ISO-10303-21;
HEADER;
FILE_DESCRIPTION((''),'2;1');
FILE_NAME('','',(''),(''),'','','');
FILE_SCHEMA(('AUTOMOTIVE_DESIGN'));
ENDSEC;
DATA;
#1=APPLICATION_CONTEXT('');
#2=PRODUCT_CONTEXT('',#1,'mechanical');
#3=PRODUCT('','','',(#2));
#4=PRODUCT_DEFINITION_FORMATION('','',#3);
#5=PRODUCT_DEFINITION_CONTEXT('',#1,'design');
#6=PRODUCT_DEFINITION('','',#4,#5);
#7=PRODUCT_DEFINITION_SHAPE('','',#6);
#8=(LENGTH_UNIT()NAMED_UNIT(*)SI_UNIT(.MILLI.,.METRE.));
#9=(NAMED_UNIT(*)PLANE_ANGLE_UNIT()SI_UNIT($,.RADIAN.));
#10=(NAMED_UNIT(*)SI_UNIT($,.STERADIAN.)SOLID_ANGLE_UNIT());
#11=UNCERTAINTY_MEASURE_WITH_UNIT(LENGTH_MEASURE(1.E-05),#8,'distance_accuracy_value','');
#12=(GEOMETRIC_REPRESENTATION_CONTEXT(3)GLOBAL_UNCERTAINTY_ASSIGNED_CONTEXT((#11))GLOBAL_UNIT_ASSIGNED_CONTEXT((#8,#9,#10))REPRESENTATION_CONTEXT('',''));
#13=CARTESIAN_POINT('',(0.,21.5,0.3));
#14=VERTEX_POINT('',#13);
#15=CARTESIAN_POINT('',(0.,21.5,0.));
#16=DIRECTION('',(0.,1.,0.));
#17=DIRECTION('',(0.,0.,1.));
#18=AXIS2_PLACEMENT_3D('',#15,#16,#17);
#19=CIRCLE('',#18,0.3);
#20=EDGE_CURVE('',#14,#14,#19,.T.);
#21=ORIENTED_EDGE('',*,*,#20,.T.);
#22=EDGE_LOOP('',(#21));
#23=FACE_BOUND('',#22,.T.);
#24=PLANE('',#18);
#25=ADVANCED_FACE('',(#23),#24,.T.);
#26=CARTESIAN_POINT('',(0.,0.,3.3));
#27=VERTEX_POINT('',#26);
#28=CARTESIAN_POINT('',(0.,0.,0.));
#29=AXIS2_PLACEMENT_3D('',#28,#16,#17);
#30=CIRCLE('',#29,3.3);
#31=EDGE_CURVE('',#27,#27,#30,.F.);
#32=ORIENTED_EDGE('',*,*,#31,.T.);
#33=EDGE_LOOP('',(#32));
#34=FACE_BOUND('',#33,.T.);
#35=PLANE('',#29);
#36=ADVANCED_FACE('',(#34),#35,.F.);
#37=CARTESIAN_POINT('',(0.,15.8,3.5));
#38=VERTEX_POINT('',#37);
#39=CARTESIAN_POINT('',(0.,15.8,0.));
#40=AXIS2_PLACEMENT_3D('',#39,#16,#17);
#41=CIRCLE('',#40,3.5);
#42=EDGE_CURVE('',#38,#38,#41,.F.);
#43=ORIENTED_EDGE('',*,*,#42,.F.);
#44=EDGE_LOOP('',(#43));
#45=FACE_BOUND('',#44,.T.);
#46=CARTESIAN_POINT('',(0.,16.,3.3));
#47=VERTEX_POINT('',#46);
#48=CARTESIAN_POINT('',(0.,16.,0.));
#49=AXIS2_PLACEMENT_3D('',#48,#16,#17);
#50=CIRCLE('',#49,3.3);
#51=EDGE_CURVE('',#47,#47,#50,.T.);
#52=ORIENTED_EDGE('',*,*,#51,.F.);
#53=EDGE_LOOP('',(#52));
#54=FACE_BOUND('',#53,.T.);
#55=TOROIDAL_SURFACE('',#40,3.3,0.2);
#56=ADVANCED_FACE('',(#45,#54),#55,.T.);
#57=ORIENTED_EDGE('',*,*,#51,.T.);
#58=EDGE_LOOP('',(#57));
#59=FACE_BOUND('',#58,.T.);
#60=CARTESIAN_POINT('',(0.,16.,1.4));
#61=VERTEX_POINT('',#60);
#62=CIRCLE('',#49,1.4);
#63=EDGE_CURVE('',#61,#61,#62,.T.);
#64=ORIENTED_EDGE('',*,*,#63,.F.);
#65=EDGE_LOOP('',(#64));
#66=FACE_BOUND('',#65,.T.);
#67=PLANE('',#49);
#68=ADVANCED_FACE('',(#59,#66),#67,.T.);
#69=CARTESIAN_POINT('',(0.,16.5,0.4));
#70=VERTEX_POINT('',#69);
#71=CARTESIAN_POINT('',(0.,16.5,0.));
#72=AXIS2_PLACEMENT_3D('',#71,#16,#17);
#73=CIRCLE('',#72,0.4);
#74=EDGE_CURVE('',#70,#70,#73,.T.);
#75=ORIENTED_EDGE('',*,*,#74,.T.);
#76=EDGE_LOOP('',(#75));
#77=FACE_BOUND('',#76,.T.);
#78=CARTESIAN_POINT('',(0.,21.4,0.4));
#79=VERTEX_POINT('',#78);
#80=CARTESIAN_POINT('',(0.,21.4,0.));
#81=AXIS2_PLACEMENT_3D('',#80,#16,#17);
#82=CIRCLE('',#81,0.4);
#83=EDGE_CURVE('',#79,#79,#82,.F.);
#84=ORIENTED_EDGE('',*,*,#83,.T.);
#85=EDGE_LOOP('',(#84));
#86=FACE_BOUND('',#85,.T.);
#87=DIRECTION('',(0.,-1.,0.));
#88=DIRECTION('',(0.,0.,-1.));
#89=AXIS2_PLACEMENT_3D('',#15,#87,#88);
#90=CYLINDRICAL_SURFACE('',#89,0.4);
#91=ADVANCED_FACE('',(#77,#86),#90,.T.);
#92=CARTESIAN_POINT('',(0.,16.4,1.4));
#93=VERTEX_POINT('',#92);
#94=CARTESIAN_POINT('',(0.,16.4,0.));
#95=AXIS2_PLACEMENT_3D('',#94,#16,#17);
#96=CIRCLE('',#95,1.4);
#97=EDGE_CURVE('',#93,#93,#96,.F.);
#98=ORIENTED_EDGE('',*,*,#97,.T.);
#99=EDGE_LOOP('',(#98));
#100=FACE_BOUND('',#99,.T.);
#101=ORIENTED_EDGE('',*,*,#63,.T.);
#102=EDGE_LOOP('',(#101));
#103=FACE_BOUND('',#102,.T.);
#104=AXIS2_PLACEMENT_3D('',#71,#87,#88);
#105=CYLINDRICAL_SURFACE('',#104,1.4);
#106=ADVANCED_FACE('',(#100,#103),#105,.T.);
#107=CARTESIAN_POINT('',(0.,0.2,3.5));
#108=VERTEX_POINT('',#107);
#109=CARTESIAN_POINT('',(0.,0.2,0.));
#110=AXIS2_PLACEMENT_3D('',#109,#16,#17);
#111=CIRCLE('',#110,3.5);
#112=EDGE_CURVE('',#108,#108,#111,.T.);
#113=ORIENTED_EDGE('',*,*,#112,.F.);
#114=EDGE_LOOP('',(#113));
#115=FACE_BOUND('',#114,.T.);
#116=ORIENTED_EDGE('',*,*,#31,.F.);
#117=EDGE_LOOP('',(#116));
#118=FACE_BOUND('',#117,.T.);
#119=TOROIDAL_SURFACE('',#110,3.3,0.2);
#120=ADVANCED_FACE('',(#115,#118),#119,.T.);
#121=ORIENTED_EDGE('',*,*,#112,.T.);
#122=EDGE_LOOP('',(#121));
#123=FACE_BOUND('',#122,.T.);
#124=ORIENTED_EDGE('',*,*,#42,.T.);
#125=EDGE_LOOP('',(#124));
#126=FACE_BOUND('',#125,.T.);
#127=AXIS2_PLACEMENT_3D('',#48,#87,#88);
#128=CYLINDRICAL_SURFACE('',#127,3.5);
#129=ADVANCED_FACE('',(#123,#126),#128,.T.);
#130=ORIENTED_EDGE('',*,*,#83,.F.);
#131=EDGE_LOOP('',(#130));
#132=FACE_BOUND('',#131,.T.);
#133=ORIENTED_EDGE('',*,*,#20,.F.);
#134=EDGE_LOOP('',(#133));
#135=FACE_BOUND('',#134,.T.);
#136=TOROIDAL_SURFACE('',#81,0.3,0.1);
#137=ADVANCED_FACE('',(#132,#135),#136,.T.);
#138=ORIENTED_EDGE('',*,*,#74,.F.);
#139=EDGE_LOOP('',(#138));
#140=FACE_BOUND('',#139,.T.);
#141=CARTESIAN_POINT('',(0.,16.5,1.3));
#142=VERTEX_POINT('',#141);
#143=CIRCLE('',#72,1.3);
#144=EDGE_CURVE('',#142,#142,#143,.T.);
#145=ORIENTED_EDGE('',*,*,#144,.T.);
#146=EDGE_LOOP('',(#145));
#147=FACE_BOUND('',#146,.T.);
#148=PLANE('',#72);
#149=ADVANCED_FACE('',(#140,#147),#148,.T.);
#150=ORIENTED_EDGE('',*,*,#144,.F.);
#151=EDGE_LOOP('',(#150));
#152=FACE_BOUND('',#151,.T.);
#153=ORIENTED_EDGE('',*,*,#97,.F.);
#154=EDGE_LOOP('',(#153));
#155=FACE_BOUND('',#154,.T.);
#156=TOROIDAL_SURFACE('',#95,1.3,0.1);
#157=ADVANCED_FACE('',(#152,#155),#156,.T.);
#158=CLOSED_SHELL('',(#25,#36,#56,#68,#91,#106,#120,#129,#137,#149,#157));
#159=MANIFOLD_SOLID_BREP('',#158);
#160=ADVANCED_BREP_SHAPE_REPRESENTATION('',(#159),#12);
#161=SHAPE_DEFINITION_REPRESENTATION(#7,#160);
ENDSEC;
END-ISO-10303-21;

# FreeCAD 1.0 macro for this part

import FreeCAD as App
import Part
import Sketcher
from FreeCAD import Vector
Q = App.Units.Quantity


def edges_at(feature, points):
    """Names of the edges that pass closest to the given points."""
    edges = feature.Shape.Edges
    near = lambda p: min(range(len(edges)), key=lambda i: edges[i].distToShape(Part.Vertex(*p))[0])
    return sorted({f"Edge{near(p) + 1}" for p in points})

doc = App.newDocument("Part")
params = doc.addObject("Spreadsheet::Sheet", "Params")
for row, (alias, value) in enumerate([
    ("sketch1_diameter", "7 mm"),
    ("pad1_length", "16 mm"),
    ("sketch2_diameter", "2.8 mm"),
    ("pad2_length", "0.5 mm"),
    ("sketch3_diameter", "0.8 mm"),
    ("pad3_length", "5 mm"),
    ("fillet_radius", "0.1 mm"),
    ("fillet2_radius", "0.2 mm"),
    ("fillet3_radius", "0.2 mm"),
    ("fillet4_radius", "0.1 mm"),
], start=1):
    params.set(f"A{row}", alias)
    params.set(f"B{row}", "=" + value)
    params.setAlias(f"B{row}", alias)

body = doc.addObject("PartDesign::Body", "Body")

sketch1 = body.newObject("Sketcher::SketchObject", "Sketch")
sketch1.AttachmentSupport = (doc.getObject("XZ_Plane"), [""])
sketch1.MapMode = "FlatFace"
sketch1.addGeometry(Part.Circle(Vector(0, 0, 0), Vector(0, 0, 1), 3.5), False)
sketch1.addConstraint(Sketcher.Constraint("Coincident", 0, 3, -1, 1))
sketch1.addConstraint(Sketcher.Constraint("Diameter", 0, Q("7 mm")))
sketch1.setExpression("Constraints[1]", "Params.sketch1_diameter")
pad1 = body.newObject("PartDesign::Pad", "Pad")
pad1.Profile = sketch1
pad1.setExpression("Length", "Params.pad1_length")
pad1.Reversed = True

sketch2 = body.newObject("Sketcher::SketchObject", "Sketch001")
sketch2.AttachmentSupport = (doc.getObject("XZ_Plane"), [""])
sketch2.MapMode = "FlatFace"
sketch2.AttachmentOffset = App.Placement(Vector(0, 0, -16), App.Rotation())
sketch2.addGeometry(Part.Circle(Vector(0, 0, 0), Vector(0, 0, 1), 1.4), False)
sketch2.addConstraint(Sketcher.Constraint("Coincident", 0, 3, -1, 1))
sketch2.addConstraint(Sketcher.Constraint("Diameter", 0, Q("2.8 mm")))
sketch2.setExpression("Constraints[1]", "Params.sketch2_diameter")
pad2 = body.newObject("PartDesign::Pad", "Pad001")
pad2.Profile = sketch2
pad2.setExpression("Length", "Params.pad2_length")
pad2.Reversed = True

sketch3 = body.newObject("Sketcher::SketchObject", "Sketch002")
sketch3.AttachmentSupport = (doc.getObject("XZ_Plane"), [""])
sketch3.MapMode = "FlatFace"
sketch3.AttachmentOffset = App.Placement(Vector(0, 0, -16.5), App.Rotation())
sketch3.addGeometry(Part.Circle(Vector(0, 0, 0), Vector(0, 0, 1), 0.4), False)
sketch3.addConstraint(Sketcher.Constraint("Coincident", 0, 3, -1, 1))
sketch3.addConstraint(Sketcher.Constraint("Diameter", 0, Q("0.8 mm")))
sketch3.setExpression("Constraints[1]", "Params.sketch3_diameter")
pad3 = body.newObject("PartDesign::Pad", "Pad002")
pad3.Profile = sketch3
pad3.setExpression("Length", "Params.pad3_length")
pad3.Reversed = True
doc.recompute()

fillet = body.newObject("PartDesign::Fillet", "Fillet")
fillet.Base = (pad3, edges_at(pad3, [(0, 21.5, -0.4)]))
fillet.setExpression("Radius", "Params.fillet_radius")
doc.recompute()

fillet2 = body.newObject("PartDesign::Fillet", "Fillet001")
fillet2.Base = (fillet, edges_at(fillet, [(0, 16, -3.5)]))
fillet2.setExpression("Radius", "Params.fillet2_radius")
doc.recompute()

fillet3 = body.newObject("PartDesign::Fillet", "Fillet002")
fillet3.Base = (fillet2, edges_at(fillet2, [(0, 0, -3.5)]))
fillet3.setExpression("Radius", "Params.fillet3_radius")
doc.recompute()

fillet4 = body.newObject("PartDesign::Fillet", "Fillet003")
fillet4.Base = (fillet3, edges_at(fillet3, [(0, 16.5, -1.4)]))
fillet4.setExpression("Radius", "Params.fillet4_radius")

doc.recompute()
